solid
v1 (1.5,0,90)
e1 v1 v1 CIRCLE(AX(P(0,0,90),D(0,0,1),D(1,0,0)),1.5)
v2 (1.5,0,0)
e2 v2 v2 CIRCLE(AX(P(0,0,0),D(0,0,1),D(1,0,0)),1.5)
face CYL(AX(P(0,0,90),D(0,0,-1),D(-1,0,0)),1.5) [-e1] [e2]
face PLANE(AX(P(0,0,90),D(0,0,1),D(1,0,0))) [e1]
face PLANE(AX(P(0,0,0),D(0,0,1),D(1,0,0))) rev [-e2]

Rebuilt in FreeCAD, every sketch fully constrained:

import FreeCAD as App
import Part
import Sketcher
from FreeCAD import Vector
Q = App.Units.Quantity

doc = App.newDocument("Part")
body = doc.addObject("PartDesign::Body", "Body")

sketch1 = body.newObject("Sketcher::SketchObject", "Sketch")
sketch1.AttachmentSupport = (doc.getObject("XY_Plane"), [""])
sketch1.MapMode = "FlatFace"
sketch1.addGeometry(Part.Circle(Vector(0, 0, 0), Vector(0, 0, 1), 1.5), False)
sketch1.addConstraint([
    Sketcher.Constraint("Coincident", 0, 3, -1, 1),
    Sketcher.Constraint("Diameter", 0, Q("3 mm")),
])
pad1 = body.newObject("PartDesign::Pad", "Pad")
pad1.Profile = sketch1
pad1.Length = 90

doc.recompute()
